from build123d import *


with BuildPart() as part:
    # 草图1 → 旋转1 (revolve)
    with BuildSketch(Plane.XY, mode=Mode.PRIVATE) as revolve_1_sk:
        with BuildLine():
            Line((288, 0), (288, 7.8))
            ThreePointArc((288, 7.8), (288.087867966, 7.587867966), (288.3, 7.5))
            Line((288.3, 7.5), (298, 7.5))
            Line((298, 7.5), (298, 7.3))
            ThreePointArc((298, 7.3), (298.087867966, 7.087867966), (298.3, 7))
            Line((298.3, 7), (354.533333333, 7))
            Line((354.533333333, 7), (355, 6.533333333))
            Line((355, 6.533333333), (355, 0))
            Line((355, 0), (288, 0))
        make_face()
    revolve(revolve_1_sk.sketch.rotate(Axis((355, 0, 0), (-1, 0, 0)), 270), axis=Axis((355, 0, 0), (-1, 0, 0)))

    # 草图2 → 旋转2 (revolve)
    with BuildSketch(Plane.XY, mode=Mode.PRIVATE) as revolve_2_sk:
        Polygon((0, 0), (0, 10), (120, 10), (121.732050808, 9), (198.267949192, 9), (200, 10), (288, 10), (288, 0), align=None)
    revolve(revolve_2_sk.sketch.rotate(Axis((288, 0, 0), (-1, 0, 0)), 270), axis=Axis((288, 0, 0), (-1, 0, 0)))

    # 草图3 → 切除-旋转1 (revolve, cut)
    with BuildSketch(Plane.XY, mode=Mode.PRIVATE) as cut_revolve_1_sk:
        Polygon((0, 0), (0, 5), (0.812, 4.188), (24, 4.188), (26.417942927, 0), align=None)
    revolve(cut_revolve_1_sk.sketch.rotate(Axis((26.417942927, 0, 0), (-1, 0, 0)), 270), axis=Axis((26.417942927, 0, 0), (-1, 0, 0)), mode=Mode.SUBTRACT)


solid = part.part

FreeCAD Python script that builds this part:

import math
import FreeCAD as App
import Part
import Sketcher
Q = App.Units.Quantity

doc = App.newDocument("Part")
body = doc.addObject("PartDesign::Body", "Body")

# Sketch on XY plane
sketch1 = body.newObject("Sketcher::SketchObject", "Sketch")
sketch1.AttachmentSupport = (doc.getObject("XY_Plane"), [""])
sketch1.MapMode = "FlatFace"
sketch1.addGeometry([
    Part.LineSegment(App.Vector(288, 7.8, 0), App.Vector(288, 0, 0)),  # 0
    Part.LineSegment(App.Vector(288, 0, 0), App.Vector(355, 0, 0)),  # 1
    Part.LineSegment(App.Vector(355, 0, 0), App.Vector(355, 6.53, 0)),  # 2
    Part.LineSegment(App.Vector(355, 6.53, 0), App.Vector(354.53, 7, 0)),  # 3
    Part.LineSegment(App.Vector(354.53, 7, 0), App.Vector(298.3, 7, 0)),  # 4
    Part.ArcOfCircle(Part.Circle(App.Vector(298.3, 7.3, 0), App.Vector(0, 0, 1), 0.3), math.radians(-180), math.radians(-90)),  # 5
    Part.LineSegment(App.Vector(298, 7.3, 0), App.Vector(298, 7.5, 0)),  # 6
    Part.LineSegment(App.Vector(298, 7.5, 0), App.Vector(288.3, 7.5, 0)),  # 7
    Part.ArcOfCircle(Part.Circle(App.Vector(288.3, 7.8, 0), App.Vector(0, 0, 1), 0.3), math.radians(-180), math.radians(-90)),  # 8
], False)
sketch1.addConstraint([
    Sketcher.Constraint("Coincident", 0, 2, 1, 1),
    Sketcher.Constraint("Coincident", 1, 2, 2, 1),
    Sketcher.Constraint("Coincident", 2, 2, 3, 1),
    Sketcher.Constraint("Coincident", 3, 2, 4, 1),
    Sketcher.Constraint("Tangent", 4, 2, 5, 2),
    Sketcher.Constraint("Tangent", 5, 1, 6, 1),
    Sketcher.Constraint("Coincident", 6, 2, 7, 1),
    Sketcher.Constraint("Tangent", 7, 2, 8, 2),
    Sketcher.Constraint("Tangent", 8, 1, 0, 1),
    Sketcher.Constraint("Vertical", 0),
    Sketcher.Constraint("Horizontal", 1),
    Sketcher.Constraint("Vertical", 2),
    Sketcher.Constraint("Horizontal", 4),
    Sketcher.Constraint("Vertical", 6),
    Sketcher.Constraint("Horizontal", 7),
    Sketcher.Constraint("Equal", 5, 8),
    Sketcher.Constraint("PointOnObject", 0, 2, -1),
    Sketcher.Constraint("Radius", 5, Q("0.3 mm")),
    Sketcher.Constraint("DistanceX", 1, 1, 1, 2, Q("67 mm")),
    Sketcher.Constraint("Angle", 3, Q("135 deg")),
    Sketcher.Constraint("DistanceX", 7, 2, 7, 1, Q("9.7 mm")),
    Sketcher.Constraint("DistanceY", 0, 2, 0, 1, Q("7.8 mm")),
    Sketcher.Constraint("DistanceY", 6, 1, 6, 2, Q("0.2 mm")),
    Sketcher.Constraint("DistanceX", -1, 1, 0, 2, Q("288 mm")),
    Sketcher.Constraint("DistanceX", 4, 2, 4, 1, Q("56.233333 mm")),
])
revolution = body.newObject("PartDesign::Revolution", "Revolution")
revolution.Profile = sketch1
revolution.ReferenceAxis = (sketch1, ["H_Axis"])
revolution.Angle = 360

# Sketch on XY plane
sketch2 = body.newObject("Sketcher::SketchObject", "Sketch001")
sketch2.AttachmentSupport = (doc.getObject("XY_Plane"), [""])
sketch2.MapMode = "FlatFace"
sketch2.addGeometry([
    Part.LineSegment(App.Vector(0, 10, 0), App.Vector(0, 0, 0)),  # 0
    Part.LineSegment(App.Vector(0, 0, 0), App.Vector(288, 0, 0)),  # 1
    Part.LineSegment(App.Vector(288, 0, 0), App.Vector(288, 10, 0)),  # 2
    Part.LineSegment(App.Vector(288, 10, 0), App.Vector(200, 10, 0)),  # 3
    Part.LineSegment(App.Vector(200, 10, 0), App.Vector(198.3, 9, 0)),  # 4
    Part.LineSegment(App.Vector(198.3, 9, 0), App.Vector(121.7, 9, 0)),  # 5
    Part.LineSegment(App.Vector(121.7, 9, 0), App.Vector(120, 10, 0)),  # 6
    Part.LineSegment(App.Vector(120, 10, 0), App.Vector(0, 10, 0)),  # 7
], False)
sketch2.addConstraint([
    Sketcher.Constraint("Coincident", 0, 2, 1, 1),
    Sketcher.Constraint("Coincident", 1, 2, 2, 1),
    Sketcher.Constraint("Coincident", 2, 2, 3, 1),
    Sketcher.Constraint("Coincident", 3, 2, 4, 1),
    Sketcher.Constraint("Coincident", 4, 2, 5, 1),
    Sketcher.Constraint("Coincident", 5, 2, 6, 1),
    Sketcher.Constraint("Coincident", 6, 2, 7, 1),
    Sketcher.Constraint("Coincident", 7, 2, 0, 1),
    Sketcher.Constraint("Vertical", 0),
    Sketcher.Constraint("Horizontal", 1),
    Sketcher.Constraint("Vertical", 2),
    Sketcher.Constraint("Horizontal", 3),
    Sketcher.Constraint("Horizontal", 5),
    Sketcher.Constraint("Horizontal", 7),
    Sketcher.Constraint("Coincident", 0, 2, -1, 1),
    Sketcher.Constraint("Horizontal", 3, 2, 6, 2),
    Sketcher.Constraint("Equal", 4, 6),
    Sketcher.Constraint("DistanceX", 1, 1, 1, 2, Q("288 mm")),
    Sketcher.Constraint("DistanceX", 3, 2, 3, 1, Q("88 mm")),
    Sketcher.Constraint("DistanceX", 7, 2, 7, 1, Q("120 mm")),
    Sketcher.Constraint("DistanceY", 0, 2, 0, 1, Q("10 mm")),
    Sketcher.Constraint("Angle", 4, Q("-150 deg")),
    Sketcher.Constraint("Distance", 4, Q("2 mm")),
])
revolution2 = body.newObject("PartDesign::Revolution", "Revolution001")
revolution2.Profile = sketch2
revolution2.ReferenceAxis = (sketch2, ["H_Axis"])
revolution2.Angle = 360

# Sketch on XY plane
sketch3 = body.newObject("Sketcher::SketchObject", "Sketch002")
sketch3.AttachmentSupport = (doc.getObject("XY_Plane"), [""])
sketch3.MapMode = "FlatFace"
sketch3.addGeometry([
    Part.LineSegment(App.Vector(0, 5, 0), App.Vector(0, 0, 0)),  # 0
    Part.LineSegment(App.Vector(0, 0, 0), App.Vector(26.4, 0, 0)),  # 1
    Part.LineSegment(App.Vector(26.4, 0, 0), App.Vector(24, 4.2, 0)),  # 2
    Part.LineSegment(App.Vector(24, 4.2, 0), App.Vector(0.8, 4.2, 0)),  # 3
    Part.LineSegment(App.Vector(0.8, 4.2, 0), App.Vector(0, 5, 0)),  # 4
], False)
sketch3.addConstraint([
    Sketcher.Constraint("Coincident", 0, 2, 1, 1),
    Sketcher.Constraint("Coincident", 1, 2, 2, 1),
    Sketcher.Constraint("Coincident", 2, 2, 3, 1),
    Sketcher.Constraint("Coincident", 3, 2, 4, 1),
    Sketcher.Constraint("Coincident", 4, 2, 0, 1),
    Sketcher.Constraint("Vertical", 0),
    Sketcher.Constraint("Horizontal", 1),
    Sketcher.Constraint("Horizontal", 3),
    Sketcher.Constraint("Coincident", 0, 2, -1, 1),
    Sketcher.Constraint("DistanceY", 0, 2, 0, 1, Q("5 mm")),
    Sketcher.Constraint("Angle", 2, Q("120 deg")),
    Sketcher.Constraint("Angle", 4, Q("135 deg")),
    Sketcher.Constraint("DistanceX", -1, 1, 2, 2, Q("24 mm")),
    Sketcher.Constraint("DistanceX", 3, 2, 3, 1, Q("23.188 mm")),
])
groove = body.newObject("PartDesign::Groove", "Groove")
groove.Profile = sketch3
groove.ReferenceAxis = (sketch3, ["H_Axis"])
groove.Angle = 360

doc.recompute()
